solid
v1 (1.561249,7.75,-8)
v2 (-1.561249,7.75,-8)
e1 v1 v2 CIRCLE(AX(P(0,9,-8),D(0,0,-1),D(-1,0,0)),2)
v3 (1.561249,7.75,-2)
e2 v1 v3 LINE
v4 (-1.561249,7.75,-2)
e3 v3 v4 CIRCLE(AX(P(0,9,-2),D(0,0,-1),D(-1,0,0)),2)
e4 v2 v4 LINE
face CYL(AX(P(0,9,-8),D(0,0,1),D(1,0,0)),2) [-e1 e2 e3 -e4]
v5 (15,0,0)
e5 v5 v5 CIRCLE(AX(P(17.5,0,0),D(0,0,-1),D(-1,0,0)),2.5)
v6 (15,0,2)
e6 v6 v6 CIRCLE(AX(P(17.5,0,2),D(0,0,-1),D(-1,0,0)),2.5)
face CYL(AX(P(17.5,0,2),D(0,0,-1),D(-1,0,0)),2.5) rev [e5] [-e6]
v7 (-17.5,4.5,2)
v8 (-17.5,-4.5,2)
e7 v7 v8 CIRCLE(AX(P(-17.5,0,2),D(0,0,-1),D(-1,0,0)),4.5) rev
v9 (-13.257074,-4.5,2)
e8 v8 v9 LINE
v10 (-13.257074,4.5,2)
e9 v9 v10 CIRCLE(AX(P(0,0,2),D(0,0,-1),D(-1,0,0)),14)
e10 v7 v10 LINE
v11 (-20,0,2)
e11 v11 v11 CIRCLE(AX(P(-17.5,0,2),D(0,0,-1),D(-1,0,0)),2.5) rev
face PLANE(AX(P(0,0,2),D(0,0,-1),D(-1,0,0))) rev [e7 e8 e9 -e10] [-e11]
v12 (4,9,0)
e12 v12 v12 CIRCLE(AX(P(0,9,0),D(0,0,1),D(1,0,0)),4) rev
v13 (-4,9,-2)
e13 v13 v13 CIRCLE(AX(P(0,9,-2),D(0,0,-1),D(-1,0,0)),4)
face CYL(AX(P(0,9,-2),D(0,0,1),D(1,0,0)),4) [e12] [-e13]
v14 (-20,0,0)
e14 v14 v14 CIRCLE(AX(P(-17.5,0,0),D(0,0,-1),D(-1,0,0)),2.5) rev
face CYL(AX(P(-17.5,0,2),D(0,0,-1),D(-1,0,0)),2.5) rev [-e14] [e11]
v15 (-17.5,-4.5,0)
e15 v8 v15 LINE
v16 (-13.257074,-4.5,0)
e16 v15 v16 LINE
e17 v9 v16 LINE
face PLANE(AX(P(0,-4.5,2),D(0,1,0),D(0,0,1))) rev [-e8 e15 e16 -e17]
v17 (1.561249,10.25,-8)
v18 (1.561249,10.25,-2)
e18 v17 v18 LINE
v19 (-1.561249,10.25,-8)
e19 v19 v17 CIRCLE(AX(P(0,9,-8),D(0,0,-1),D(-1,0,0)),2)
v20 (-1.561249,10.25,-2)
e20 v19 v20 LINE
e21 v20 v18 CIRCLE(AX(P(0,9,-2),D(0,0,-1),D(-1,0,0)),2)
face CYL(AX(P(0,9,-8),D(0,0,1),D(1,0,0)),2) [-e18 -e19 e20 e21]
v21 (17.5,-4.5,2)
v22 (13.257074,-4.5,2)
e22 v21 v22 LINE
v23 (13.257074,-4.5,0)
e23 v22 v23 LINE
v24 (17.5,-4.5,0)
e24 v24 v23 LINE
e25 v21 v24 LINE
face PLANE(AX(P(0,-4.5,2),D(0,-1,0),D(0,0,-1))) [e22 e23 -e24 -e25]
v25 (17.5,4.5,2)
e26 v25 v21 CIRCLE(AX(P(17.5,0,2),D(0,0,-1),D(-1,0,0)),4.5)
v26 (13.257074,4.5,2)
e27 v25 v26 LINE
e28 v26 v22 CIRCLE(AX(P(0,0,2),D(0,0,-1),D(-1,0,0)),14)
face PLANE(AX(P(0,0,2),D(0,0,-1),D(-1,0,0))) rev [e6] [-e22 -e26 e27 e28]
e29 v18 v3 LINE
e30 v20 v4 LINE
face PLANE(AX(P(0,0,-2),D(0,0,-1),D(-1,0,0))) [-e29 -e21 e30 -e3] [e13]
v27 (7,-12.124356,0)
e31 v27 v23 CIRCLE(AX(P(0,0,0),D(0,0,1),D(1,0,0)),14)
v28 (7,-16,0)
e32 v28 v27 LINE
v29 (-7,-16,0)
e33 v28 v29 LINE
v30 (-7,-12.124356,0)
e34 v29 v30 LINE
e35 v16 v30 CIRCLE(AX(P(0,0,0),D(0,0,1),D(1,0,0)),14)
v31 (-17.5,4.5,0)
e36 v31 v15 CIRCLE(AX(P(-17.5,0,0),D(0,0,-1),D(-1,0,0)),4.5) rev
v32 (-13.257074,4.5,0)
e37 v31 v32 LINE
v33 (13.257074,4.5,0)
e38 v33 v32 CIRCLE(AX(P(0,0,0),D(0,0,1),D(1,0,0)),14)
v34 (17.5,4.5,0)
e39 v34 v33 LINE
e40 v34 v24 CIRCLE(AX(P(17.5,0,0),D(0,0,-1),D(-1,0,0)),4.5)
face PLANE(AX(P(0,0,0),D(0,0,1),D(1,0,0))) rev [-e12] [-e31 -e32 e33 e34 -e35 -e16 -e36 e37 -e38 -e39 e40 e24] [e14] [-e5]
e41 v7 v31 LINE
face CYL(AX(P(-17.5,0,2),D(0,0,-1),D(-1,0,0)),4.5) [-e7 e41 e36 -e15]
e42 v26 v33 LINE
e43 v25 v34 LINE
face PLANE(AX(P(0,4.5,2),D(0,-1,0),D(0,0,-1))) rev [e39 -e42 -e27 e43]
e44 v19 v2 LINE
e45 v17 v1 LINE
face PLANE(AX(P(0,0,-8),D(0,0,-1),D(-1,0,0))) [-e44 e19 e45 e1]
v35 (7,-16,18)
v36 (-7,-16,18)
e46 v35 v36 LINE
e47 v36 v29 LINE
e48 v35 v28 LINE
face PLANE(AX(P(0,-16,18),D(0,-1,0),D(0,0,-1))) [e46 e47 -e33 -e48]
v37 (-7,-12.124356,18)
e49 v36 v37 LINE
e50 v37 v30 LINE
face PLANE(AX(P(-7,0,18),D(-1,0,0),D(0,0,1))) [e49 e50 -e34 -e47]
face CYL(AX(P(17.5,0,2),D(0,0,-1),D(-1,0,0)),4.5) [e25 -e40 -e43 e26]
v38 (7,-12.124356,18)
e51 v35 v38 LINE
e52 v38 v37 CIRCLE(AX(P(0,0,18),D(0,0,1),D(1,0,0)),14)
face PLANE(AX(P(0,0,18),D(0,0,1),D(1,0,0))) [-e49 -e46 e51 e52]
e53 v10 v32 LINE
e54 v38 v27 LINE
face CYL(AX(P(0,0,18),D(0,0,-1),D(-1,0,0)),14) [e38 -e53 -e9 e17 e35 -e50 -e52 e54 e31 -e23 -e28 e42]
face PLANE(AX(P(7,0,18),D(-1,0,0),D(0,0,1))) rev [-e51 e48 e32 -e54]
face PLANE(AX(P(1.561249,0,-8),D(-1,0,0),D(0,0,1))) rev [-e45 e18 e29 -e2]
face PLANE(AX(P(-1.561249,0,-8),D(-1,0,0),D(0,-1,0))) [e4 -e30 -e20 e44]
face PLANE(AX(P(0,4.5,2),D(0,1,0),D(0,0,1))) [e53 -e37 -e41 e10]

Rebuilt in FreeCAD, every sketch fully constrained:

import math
import FreeCAD as App
import Part
import Sketcher

doc = App.newDocument("Part")
body = doc.addObject("PartDesign::Body", "Body")

# Sketch on XY plane
sketch1 = body.newObject("Sketcher::SketchObject", "Sketch")
sketch1.AttachmentSupport = (doc.getObject("XY_Plane"), [""])
sketch1.MapMode = "FlatFace"
sketch1.addGeometry(Part.LineSegment(App.Vector(7, -16, 0), App.Vector(7, -12.1, 0)), False)
sketch1.addGeometry(Part.ArcOfCircle(Part.Circle(App.Vector(0, 0, 0), App.Vector(0, 0, 1), 14), math.radians(-60), math.radians(240)), False)
sketch1.addGeometry(Part.LineSegment(App.Vector(-7, -12.1, 0), App.Vector(-7, -16, 0)), False)
sketch1.addGeometry(Part.LineSegment(App.Vector(-7, -16, 0), App.Vector(7, -16, 0)), False)
sketch1.addConstraint(Sketcher.Constraint("Coincident", 0, 2, 1, 1))
sketch1.addConstraint(Sketcher.Constraint("Coincident", 1, 2, 2, 1))
sketch1.addConstraint(Sketcher.Constraint("Coincident", 2, 2, 3, 1))
sketch1.addConstraint(Sketcher.Constraint("Coincident", 3, 2, 0, 1))
sketch1.addConstraint(Sketcher.Constraint("Vertical", 0))
sketch1.addConstraint(Sketcher.Constraint("Vertical", 2))
sketch1.addConstraint(Sketcher.Constraint("Horizontal", 3))
sketch1.addConstraint(Sketcher.Constraint("Coincident", 1, 3, -1, 1))
sketch1.addConstraint(Sketcher.Constraint("Horizontal", 0, 2, 1, 2))
sketch1.addConstraint(Sketcher.Constraint("Radius", 1, 14.0))
sketch1.addConstraint(Sketcher.Constraint("DistanceX", 3, 1, 3, 2, 14.0))
sketch1.addConstraint(Sketcher.Constraint("DistanceY", 2, 2, -1, 1, 16.0))
pad1 = body.newObject("PartDesign::Pad", "Pad")
pad1.Profile = sketch1
pad1.Length = 18

# Sketch on XY plane
sketch2 = body.newObject("Sketcher::SketchObject", "Sketch001")
sketch2.AttachmentSupport = (doc.getObject("XY_Plane"), [""])
sketch2.MapMode = "FlatFace"
sketch2.addGeometry(Part.LineSegment(App.Vector(13.3, 4.5, 0), App.Vector(17.5, 4.5, 0)), False)
sketch2.addGeometry(Part.ArcOfCircle(Part.Circle(App.Vector(17.5, 0, 0), App.Vector(0, 0, 1), 4.5), math.radians(-90), math.radians(90)), False)
sketch2.addGeometry(Part.LineSegment(App.Vector(17.5, -4.5, 0), App.Vector(13.3, -4.5, 0)), False)
sketch2.addGeometry(Part.ArcOfCircle(Part.Circle(App.Vector(0, 0, 0), App.Vector(0, 0, 1), 14), math.radians(-19), math.radians(19)), False)
sketch2.addGeometry(Part.Circle(App.Vector(17.5, 0, 0), App.Vector(0, 0, 1), 2.5), False)
sketch2.addGeometry(Part.LineSegment(App.Vector(-13.3, -4.5, 0), App.Vector(-17.5, -4.5, 0)), False)
sketch2.addGeometry(Part.ArcOfCircle(Part.Circle(App.Vector(-17.5, 0, 0), App.Vector(0, 0, 1), 4.5), math.radians(90), math.radians(270)), False)
sketch2.addGeometry(Part.LineSegment(App.Vector(-17.5, 4.5, 0), App.Vector(-13.3, 4.5, 0)), False)
sketch2.addGeometry(Part.ArcOfCircle(Part.Circle(App.Vector(0, 0, 0), App.Vector(0, 0, 1), 14), math.radians(161), math.radians(199)), False)
sketch2.addGeometry(Part.Circle(App.Vector(-17.5, 0, 0), App.Vector(0, 0, 1), 2.5), False)
sketch2.addConstraint(Sketcher.Constraint("Tangent", 0, 2, 1, 2))
sketch2.addConstraint(Sketcher.Constraint("Tangent", 1, 1, 2, 1))
sketch2.addConstraint(Sketcher.Constraint("Coincident", 2, 2, 3, 1))
sketch2.addConstraint(Sketcher.Constraint("Coincident", 3, 2, 0, 1))
sketch2.addConstraint(Sketcher.Constraint("Tangent", 5, 2, 6, 2))
sketch2.addConstraint(Sketcher.Constraint("Tangent", 6, 1, 7, 1))
sketch2.addConstraint(Sketcher.Constraint("Coincident", 7, 2, 8, 1))
sketch2.addConstraint(Sketcher.Constraint("Coincident", 8, 2, 5, 1))
sketch2.addConstraint(Sketcher.Constraint("Horizontal", 0))
sketch2.addConstraint(Sketcher.Constraint("Horizontal", 2))
sketch2.addConstraint(Sketcher.Constraint("Horizontal", 5))
sketch2.addConstraint(Sketcher.Constraint("Horizontal", 7))
sketch2.addConstraint(Sketcher.Constraint("Coincident", 3, 3, -1, 1))
sketch2.addConstraint(Sketcher.Constraint("Coincident", 8, 3, -1, 1))
sketch2.addConstraint(Sketcher.Constraint("Coincident", 4, 3, 1, 3))
sketch2.addConstraint(Sketcher.Constraint("Coincident", 9, 3, 6, 3))
sketch2.addConstraint(Sketcher.Constraint("Equal", 1, 6))
sketch2.addConstraint(Sketcher.Constraint("Equal", 3, 8))
sketch2.addConstraint(Sketcher.Constraint("Equal", 4, 9))
sketch2.addConstraint(Sketcher.Constraint("Symmetric", 1, 3, 6, 3, -1, 1))
sketch2.addConstraint(Sketcher.Constraint("PointOnObject", 1, 3, -1))
sketch2.addConstraint(Sketcher.Constraint("Diameter", 4, 5.0))
sketch2.addConstraint(Sketcher.Constraint("Radius", 3, 14.0))
sketch2.addConstraint(Sketcher.Constraint("Radius", 1, 4.5))
sketch2.addConstraint(Sketcher.Constraint("DistanceX", 6, 3, 1, 3, 35.0))
pad2 = body.newObject("PartDesign::Pad", "Pad001")
pad2.Profile = sketch2
pad2.Length = 2

# Sketch on XY plane
sketch3 = body.newObject("Sketcher::SketchObject", "Sketch002")
sketch3.AttachmentSupport = (doc.getObject("XY_Plane"), [""])
sketch3.MapMode = "FlatFace"
sketch3.addGeometry(Part.ArcOfCircle(Part.Circle(App.Vector(0, 9, 0), App.Vector(0, 0, 1), 4), math.radians(90), math.radians(180)), False)
sketch3.addGeometry(Part.ArcOfCircle(Part.Circle(App.Vector(0, 9, 0), App.Vector(0, 0, 1), 4), math.radians(-90), math.radians(90)), False)
sketch3.addGeometry(Part.ArcOfCircle(Part.Circle(App.Vector(0, 9, 0), App.Vector(0, 0, 1), 4), math.radians(180), math.radians(270)), False)
sketch3.addConstraint(Sketcher.Constraint("Tangent", 0, 1, 1, 2))
sketch3.addConstraint(Sketcher.Constraint("Tangent", 1, 1, 2, 2))
sketch3.addConstraint(Sketcher.Constraint("Tangent", 2, 1, 0, 2))
sketch3.addConstraint(Sketcher.Constraint("PointOnObject", 0, 3, -2))
sketch3.addConstraint(Sketcher.Constraint("PointOnObject", 0, 1, -2))
sketch3.addConstraint(Sketcher.Constraint("PointOnObject", 1, 1, -2))
sketch3.addConstraint(Sketcher.Constraint("Horizontal", 1, 3, 2, 1))
sketch3.addConstraint(Sketcher.Constraint("Radius", 0, 4.0))
sketch3.addConstraint(Sketcher.Constraint("DistanceY", -1, 1, 0, 3, 9.0))
pad3 = body.newObject("PartDesign::Pad", "Pad002")
pad3.Profile = sketch3
pad3.Length = 2
pad3.Reversed = True

# Sketch on XY plane
sketch4 = body.newObject("Sketcher::SketchObject", "Sketch003")
sketch4.AttachmentSupport = (doc.getObject("XY_Plane"), [""])
sketch4.MapMode = "FlatFace"
sketch4.AttachmentOffset = App.Placement(App.Vector(0, 0, -2), App.Rotation())
sketch4.addGeometry(Part.ArcOfCircle(Part.Circle(App.Vector(0, 9, 0), App.Vector(0, 0, 1), 2), math.radians(39), math.radians(141)), False)
sketch4.addGeometry(Part.LineSegment(App.Vector(1.6, 10.2, 0), App.Vector(1.6, 7.8, 0)), False)
sketch4.addGeometry(Part.ArcOfCircle(Part.Circle(App.Vector(0, 9, 0), App.Vector(0, 0, 1), 2), math.radians(-141), math.radians(-39)), False)
sketch4.addGeometry(Part.LineSegment(App.Vector(-1.6, 7.8, 0), App.Vector(-1.6, 10.2, 0)), False)
sketch4.addConstraint(Sketcher.Constraint("Coincident", 0, 1, 1, 1))
sketch4.addConstraint(Sketcher.Constraint("Coincident", 1, 2, 2, 2))
sketch4.addConstraint(Sketcher.Constraint("Coincident", 2, 1, 3, 1))
sketch4.addConstraint(Sketcher.Constraint("Coincident", 3, 2, 0, 2))
sketch4.addConstraint(Sketcher.Constraint("Vertical", 1))
sketch4.addConstraint(Sketcher.Constraint("Vertical", 3))
sketch4.addConstraint(Sketcher.Constraint("Coincident", 2, 3, 0, 3))
sketch4.addConstraint(Sketcher.Constraint("Equal", 0, 2))
sketch4.addConstraint(Sketcher.Constraint("Symmetric", 1, 2, 2, 1, -2))
sketch4.addConstraint(Sketcher.Constraint("Radius", 0, 2.0))
sketch4.addConstraint(Sketcher.Constraint("DistanceY", 1, 2, 1, 1, 2.5))
sketch4.addConstraint(Sketcher.Constraint("DistanceY", -1, 1, 0, 3, 9.0))
pad4 = body.newObject("PartDesign::Pad", "Pad003")
pad4.Profile = sketch4
pad4.Length = 6
pad4.Reversed = True

doc.recompute()
